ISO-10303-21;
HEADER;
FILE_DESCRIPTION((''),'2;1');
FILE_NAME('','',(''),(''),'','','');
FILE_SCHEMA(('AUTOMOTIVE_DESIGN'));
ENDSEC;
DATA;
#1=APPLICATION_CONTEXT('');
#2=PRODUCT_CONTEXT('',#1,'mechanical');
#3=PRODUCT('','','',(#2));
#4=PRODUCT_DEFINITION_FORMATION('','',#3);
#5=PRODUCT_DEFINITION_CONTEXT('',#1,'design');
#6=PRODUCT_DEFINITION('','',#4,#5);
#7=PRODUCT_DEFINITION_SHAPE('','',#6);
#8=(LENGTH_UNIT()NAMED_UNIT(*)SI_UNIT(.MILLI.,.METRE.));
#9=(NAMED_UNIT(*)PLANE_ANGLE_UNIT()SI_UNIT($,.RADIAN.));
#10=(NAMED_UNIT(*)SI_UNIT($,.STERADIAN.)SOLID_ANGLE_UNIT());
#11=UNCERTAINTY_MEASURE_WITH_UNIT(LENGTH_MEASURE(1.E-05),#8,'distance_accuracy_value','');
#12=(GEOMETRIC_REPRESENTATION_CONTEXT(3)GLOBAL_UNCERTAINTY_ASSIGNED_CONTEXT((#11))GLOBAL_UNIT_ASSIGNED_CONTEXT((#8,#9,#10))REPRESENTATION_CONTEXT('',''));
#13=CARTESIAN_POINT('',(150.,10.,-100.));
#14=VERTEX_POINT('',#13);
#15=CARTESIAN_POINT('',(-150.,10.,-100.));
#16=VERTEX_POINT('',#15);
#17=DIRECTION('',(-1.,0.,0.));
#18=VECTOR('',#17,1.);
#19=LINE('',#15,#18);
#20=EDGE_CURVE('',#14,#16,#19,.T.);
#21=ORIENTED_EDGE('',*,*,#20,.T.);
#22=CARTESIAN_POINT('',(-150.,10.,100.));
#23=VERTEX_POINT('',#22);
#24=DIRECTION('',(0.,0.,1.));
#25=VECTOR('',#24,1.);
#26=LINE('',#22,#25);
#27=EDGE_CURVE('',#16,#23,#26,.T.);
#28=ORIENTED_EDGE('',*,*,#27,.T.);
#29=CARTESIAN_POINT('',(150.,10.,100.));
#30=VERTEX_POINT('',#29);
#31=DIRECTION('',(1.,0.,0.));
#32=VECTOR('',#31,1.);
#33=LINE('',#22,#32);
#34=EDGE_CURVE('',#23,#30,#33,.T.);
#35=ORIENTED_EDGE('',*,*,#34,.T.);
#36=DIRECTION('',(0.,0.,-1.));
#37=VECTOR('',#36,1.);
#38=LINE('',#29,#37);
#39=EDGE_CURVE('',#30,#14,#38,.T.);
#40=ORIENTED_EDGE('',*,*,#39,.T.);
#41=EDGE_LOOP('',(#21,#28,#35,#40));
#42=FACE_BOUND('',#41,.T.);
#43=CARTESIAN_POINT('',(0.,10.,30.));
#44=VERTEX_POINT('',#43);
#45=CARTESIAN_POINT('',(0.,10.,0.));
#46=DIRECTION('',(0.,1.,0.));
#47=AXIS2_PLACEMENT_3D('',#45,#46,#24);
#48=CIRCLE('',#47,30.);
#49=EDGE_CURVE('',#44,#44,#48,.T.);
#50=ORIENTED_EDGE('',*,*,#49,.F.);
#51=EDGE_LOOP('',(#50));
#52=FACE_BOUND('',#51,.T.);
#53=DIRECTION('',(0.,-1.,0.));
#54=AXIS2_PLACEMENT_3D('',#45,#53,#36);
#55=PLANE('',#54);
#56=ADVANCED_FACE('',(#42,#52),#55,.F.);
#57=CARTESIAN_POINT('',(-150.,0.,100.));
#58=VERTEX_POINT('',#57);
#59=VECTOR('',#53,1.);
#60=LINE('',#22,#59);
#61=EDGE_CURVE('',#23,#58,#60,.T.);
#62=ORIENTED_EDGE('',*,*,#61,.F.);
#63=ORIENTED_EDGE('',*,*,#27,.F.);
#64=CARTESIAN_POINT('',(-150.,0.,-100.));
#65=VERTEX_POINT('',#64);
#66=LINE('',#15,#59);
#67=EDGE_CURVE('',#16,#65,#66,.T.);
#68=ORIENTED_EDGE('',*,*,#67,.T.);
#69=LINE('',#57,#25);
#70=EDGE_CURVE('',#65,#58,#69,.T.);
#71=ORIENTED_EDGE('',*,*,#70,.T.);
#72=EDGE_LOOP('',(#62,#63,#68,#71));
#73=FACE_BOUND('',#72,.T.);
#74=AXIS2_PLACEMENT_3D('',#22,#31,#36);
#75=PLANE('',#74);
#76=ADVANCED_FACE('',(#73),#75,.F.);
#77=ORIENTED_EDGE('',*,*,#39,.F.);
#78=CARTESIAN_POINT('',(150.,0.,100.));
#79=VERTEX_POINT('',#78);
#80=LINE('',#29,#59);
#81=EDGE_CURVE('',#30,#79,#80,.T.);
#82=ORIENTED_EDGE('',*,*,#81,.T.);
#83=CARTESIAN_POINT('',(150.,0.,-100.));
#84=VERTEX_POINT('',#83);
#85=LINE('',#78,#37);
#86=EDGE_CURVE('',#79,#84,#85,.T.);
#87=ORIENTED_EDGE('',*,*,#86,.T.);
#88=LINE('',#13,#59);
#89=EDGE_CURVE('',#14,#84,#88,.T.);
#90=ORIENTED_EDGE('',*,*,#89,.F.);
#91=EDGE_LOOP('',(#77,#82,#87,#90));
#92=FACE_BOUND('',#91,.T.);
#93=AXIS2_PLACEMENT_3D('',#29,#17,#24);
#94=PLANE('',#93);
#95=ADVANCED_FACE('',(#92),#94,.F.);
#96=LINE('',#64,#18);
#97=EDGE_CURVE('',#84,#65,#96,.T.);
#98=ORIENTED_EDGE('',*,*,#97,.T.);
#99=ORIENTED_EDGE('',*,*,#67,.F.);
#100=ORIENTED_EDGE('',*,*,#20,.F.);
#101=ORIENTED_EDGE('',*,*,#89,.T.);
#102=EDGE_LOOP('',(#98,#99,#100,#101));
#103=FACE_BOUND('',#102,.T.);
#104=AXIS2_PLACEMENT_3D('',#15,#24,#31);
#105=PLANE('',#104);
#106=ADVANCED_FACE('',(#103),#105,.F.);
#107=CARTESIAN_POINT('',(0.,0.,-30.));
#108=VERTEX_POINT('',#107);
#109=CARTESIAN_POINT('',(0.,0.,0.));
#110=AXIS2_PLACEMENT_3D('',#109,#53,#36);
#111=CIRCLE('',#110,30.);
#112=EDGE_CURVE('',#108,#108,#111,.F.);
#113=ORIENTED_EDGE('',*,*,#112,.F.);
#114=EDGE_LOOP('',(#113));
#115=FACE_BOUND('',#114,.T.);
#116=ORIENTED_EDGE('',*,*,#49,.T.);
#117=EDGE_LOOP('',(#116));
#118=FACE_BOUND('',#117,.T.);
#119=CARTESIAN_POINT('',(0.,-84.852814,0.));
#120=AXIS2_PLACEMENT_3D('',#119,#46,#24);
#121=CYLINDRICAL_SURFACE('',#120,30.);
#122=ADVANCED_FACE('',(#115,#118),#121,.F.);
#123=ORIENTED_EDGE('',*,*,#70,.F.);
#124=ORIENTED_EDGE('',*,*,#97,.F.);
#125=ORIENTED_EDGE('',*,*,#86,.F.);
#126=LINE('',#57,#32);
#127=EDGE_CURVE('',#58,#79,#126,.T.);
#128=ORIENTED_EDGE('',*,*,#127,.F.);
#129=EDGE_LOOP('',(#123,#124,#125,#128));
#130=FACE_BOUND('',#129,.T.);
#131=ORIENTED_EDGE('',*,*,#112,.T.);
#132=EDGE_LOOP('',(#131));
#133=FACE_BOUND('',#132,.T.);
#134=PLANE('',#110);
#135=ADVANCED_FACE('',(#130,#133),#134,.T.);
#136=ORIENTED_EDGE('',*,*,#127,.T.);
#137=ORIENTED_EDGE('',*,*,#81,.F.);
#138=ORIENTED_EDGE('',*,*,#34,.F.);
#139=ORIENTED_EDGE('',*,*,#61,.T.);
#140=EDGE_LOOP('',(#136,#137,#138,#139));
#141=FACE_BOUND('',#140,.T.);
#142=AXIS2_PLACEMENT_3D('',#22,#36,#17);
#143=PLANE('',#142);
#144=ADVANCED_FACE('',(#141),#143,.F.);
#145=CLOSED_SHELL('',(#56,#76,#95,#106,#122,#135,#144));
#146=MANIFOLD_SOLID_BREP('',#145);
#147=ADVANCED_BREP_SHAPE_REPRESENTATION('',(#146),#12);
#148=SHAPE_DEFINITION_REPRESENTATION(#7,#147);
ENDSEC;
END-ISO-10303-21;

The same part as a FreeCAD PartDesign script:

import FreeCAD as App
import Part
import Sketcher

V = App.Vector
Q = App.Units.Quantity

doc = App.newDocument("Part")
body = doc.addObject("PartDesign::Body", "Body")

# Sketch on XZ plane
sketch1 = body.newObject("Sketcher::SketchObject", "Sketch")
sketch1.AttachmentSupport = (doc.getObject("XZ_Plane"), [""])
sketch1.MapMode = "FlatFace"
sketch1.addGeometry([
    Part.LineSegment(V(-150, -100, 0), V(-150, 100, 0)),
    Part.LineSegment(V(-150, 100, 0), V(150, 100, 0)),
    Part.LineSegment(V(150, 100, 0), V(150, -100, 0)),
    Part.LineSegment(V(150, -100, 0), V(-150, -100, 0)),
], False)
sketch1.addConstraint([
    Sketcher.Constraint("Coincident", 0, 2, 1, 1),
    Sketcher.Constraint("Coincident", 1, 2, 2, 1),
    Sketcher.Constraint("Coincident", 2, 2, 3, 1),
    Sketcher.Constraint("Coincident", 3, 2, 0, 1),
    Sketcher.Constraint("Vertical", 0),
    Sketcher.Constraint("Horizontal", 1),
    Sketcher.Constraint("Vertical", 2),
    Sketcher.Constraint("Horizontal", 3),
    Sketcher.Constraint("Symmetric", 0, 2, 2, 2, -1, 1),
    Sketcher.Constraint("DistanceX", 1, 1, 1, 2, Q("300 mm")),
    Sketcher.Constraint("DistanceY", 0, 1, 0, 2, Q("200 mm")),
])
pad1 = body.newObject("PartDesign::Pad", "Pad")
pad1.Profile = sketch1
pad1.Length = 10
pad1.Reversed = True

# Sketch on XZ plane
sketch2 = body.newObject("Sketcher::SketchObject", "Sketch001")
sketch2.AttachmentSupport = (doc.getObject("XZ_Plane"), [""])
sketch2.MapMode = "FlatFace"
sketch2.AttachmentOffset = App.Placement(V(0, 0, -10), App.Rotation())
sketch2.addGeometry(Part.Circle(V(0, 0, 0), V(0, 0, 1), 30), False)
sketch2.addConstraint([
    Sketcher.Constraint("Coincident", 0, 3, -1, 1),
    Sketcher.Constraint("Diameter", 0, Q("60 mm")),
])
pocket1 = body.newObject("PartDesign::Pocket", "Pocket")
pocket1.Profile = sketch2
pocket1.Length = 10
pocket1.Reversed = True

doc.recompute()
